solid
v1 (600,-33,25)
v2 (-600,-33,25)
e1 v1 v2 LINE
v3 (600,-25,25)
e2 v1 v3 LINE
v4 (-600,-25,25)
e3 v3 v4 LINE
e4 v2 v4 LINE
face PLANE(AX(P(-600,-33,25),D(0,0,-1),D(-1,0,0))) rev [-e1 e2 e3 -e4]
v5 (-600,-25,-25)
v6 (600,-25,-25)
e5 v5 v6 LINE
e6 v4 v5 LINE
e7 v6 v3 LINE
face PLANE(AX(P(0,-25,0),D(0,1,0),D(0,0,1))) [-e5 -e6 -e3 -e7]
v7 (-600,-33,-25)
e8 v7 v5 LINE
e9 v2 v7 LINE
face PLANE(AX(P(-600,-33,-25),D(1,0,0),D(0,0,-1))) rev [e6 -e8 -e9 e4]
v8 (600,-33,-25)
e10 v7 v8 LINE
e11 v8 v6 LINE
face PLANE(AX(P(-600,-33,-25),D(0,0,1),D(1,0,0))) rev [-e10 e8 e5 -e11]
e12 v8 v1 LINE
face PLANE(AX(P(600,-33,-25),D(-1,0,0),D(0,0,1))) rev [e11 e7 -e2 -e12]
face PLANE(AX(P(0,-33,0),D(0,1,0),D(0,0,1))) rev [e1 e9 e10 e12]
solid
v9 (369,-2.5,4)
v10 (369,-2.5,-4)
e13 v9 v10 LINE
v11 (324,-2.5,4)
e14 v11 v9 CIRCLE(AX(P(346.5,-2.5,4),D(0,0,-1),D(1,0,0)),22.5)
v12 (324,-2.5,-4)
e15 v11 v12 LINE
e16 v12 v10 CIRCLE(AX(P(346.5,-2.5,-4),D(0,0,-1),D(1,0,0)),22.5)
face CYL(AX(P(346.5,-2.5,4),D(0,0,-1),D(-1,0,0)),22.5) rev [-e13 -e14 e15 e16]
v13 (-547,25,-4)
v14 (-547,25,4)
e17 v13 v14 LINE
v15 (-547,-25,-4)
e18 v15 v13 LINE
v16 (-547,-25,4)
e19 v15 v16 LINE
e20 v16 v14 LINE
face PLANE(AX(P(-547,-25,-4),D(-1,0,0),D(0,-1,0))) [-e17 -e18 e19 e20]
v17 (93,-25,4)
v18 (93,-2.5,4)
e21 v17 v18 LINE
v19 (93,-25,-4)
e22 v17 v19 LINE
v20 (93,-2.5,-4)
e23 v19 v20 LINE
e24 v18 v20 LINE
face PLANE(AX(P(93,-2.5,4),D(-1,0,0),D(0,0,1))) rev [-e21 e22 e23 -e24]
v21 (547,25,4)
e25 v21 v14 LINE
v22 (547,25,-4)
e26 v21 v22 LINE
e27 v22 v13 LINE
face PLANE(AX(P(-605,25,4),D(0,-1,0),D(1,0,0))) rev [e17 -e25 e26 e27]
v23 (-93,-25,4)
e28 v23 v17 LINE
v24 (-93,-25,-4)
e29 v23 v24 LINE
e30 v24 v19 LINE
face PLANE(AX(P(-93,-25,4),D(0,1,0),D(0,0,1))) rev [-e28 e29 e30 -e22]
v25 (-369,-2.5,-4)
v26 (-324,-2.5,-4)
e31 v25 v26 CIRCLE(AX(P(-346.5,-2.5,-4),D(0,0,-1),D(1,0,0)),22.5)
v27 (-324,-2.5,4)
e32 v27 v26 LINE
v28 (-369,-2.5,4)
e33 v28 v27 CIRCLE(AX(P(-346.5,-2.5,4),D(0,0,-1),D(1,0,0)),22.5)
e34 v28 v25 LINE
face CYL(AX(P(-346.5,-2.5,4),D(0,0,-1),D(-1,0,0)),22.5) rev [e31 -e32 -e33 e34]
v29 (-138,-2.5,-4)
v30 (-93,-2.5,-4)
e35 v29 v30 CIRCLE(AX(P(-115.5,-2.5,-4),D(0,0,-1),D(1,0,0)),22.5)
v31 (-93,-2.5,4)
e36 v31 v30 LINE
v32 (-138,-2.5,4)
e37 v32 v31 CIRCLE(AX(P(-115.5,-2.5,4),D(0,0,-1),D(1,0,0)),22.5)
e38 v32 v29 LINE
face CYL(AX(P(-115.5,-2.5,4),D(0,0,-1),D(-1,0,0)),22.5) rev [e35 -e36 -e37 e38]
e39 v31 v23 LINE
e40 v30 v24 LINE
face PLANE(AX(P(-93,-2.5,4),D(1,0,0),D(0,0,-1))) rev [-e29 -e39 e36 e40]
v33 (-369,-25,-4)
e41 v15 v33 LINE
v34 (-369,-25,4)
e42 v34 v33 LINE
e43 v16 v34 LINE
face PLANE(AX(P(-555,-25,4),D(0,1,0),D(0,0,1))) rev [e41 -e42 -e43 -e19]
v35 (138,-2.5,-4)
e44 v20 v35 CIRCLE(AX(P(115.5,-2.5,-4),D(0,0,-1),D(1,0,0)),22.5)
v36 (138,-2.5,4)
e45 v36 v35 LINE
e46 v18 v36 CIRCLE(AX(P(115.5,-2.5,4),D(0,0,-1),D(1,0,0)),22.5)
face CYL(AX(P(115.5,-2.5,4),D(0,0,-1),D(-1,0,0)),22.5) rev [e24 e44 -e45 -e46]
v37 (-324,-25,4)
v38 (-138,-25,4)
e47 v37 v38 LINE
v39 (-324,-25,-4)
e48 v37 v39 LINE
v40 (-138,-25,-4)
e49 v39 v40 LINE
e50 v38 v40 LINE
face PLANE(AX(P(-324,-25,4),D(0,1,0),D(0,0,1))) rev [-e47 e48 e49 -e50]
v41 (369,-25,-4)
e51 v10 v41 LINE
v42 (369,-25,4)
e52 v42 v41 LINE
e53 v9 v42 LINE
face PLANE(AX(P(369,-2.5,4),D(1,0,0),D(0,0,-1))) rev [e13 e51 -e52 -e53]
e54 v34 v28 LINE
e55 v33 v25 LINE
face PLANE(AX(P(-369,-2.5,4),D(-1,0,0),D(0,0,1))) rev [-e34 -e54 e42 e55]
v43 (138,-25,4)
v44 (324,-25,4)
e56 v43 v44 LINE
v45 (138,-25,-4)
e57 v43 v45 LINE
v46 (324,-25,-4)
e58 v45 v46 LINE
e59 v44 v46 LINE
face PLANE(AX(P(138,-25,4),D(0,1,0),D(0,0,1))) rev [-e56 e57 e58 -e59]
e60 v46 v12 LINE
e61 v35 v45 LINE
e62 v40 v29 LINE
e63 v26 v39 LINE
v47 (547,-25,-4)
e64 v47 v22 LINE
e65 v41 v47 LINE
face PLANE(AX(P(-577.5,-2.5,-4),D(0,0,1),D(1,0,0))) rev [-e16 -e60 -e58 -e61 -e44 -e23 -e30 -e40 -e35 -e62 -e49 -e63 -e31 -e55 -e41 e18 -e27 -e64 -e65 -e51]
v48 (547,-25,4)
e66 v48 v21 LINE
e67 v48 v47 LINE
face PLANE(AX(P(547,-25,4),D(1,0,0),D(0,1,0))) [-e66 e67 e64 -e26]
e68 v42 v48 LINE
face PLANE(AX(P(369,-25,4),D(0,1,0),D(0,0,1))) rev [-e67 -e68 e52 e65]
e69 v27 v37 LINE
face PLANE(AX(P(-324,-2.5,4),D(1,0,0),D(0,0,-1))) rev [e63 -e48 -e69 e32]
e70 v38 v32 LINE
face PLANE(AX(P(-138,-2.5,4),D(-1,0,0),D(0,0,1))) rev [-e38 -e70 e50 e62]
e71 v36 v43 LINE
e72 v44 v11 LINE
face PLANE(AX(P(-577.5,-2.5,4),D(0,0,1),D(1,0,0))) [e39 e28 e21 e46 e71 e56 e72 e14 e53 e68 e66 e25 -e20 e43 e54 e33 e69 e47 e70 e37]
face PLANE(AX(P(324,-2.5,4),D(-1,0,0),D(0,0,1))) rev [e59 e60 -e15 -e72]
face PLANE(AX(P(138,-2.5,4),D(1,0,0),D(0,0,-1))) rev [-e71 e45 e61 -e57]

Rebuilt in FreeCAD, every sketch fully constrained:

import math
import FreeCAD as App
import Part
import Sketcher
from FreeCAD import Vector

doc = App.newDocument("Part")
body = doc.addObject("PartDesign::Body", "Body")

sketch1 = doc.addObject("Sketcher::SketchObject", "Sketch")
body.addObject(sketch1)
sketch1.AttachmentSupport = (doc.XY_Plane, [""])
sketch1.MapMode = "FlatFace"
sketch1.addGeometry([
    Part.LineSegment(Vector(-600, -25, 0), Vector(-600, -2.5, 0)),
    Part.ArcOfCircle(Part.Circle(Vector(-577.5, -2.5, 0), Vector(0, 0, 1), 22.5), math.radians(0), math.radians(180)),
    Part.LineSegment(Vector(-555, -2.5, 0), Vector(-555, -25, 0)),
    Part.LineSegment(Vector(-555, -25, 0), Vector(-369, -25, 0)),
    Part.LineSegment(Vector(-369, -25, 0), Vector(-369, -2.5, 0)),
    Part.ArcOfCircle(Part.Circle(Vector(-346.5, -2.5, 0), Vector(0, 0, 1), 22.5), math.radians(0), math.radians(180)),
    Part.LineSegment(Vector(-324, -2.5, 0), Vector(-324, -25, 0)),
    Part.LineSegment(Vector(-324, -25, 0), Vector(-138, -25, 0)),
    Part.LineSegment(Vector(-138, -25, 0), Vector(-138, -2.5, 0)),
    Part.ArcOfCircle(Part.Circle(Vector(-115.5, -2.5, 0), Vector(0, 0, 1), 22.5), math.radians(0), math.radians(180)),
    Part.LineSegment(Vector(-93, -2.5, 0), Vector(-93, -25, 0)),
    Part.LineSegment(Vector(-93, -25, 0), Vector(93, -25, 0)),
    Part.LineSegment(Vector(93, -25, 0), Vector(93, -2.5, 0)),
    Part.ArcOfCircle(Part.Circle(Vector(115.5, -2.5, 0), Vector(0, 0, 1), 22.5), math.radians(0), math.radians(180)),
    Part.LineSegment(Vector(138, -2.5, 0), Vector(138, -25, 0)),
    Part.LineSegment(Vector(138, -25, 0), Vector(324, -25, 0)),
    Part.LineSegment(Vector(324, -25, 0), Vector(324, -2.5, 0)),
    Part.ArcOfCircle(Part.Circle(Vector(346.5, -2.5, 0), Vector(0, 0, 1), 22.5), math.radians(0), math.radians(180)),
    Part.LineSegment(Vector(369, -2.5, 0), Vector(369, -25, 0)),
    Part.LineSegment(Vector(369, -25, 0), Vector(555, -25, 0)),
    Part.LineSegment(Vector(555, -25, 0), Vector(555, -2.5, 0)),
    Part.ArcOfCircle(Part.Circle(Vector(577.5, -2.5, 0), Vector(0, 0, 1), 22.5), math.radians(0), math.radians(180)),
    Part.LineSegment(Vector(600, -2.5, 0), Vector(600, -25, 0)),
    Part.LineSegment(Vector(600, -25, 0), Vector(605, -25, 0)),
    Part.LineSegment(Vector(605, -25, 0), Vector(605, 25, 0)),
    Part.LineSegment(Vector(605, 25, 0), Vector(-605, 25, 0)),
    Part.LineSegment(Vector(-605, 25, 0), Vector(-605, -25, 0)),
    Part.LineSegment(Vector(-605, -25, 0), Vector(-600, -25, 0)),
], False)
sketch1.addConstraint([
    Sketcher.Constraint("Tangent", 0, 2, 1, 2),
    Sketcher.Constraint("Tangent", 1, 1, 2, 1),
    Sketcher.Constraint("Coincident", 2, 2, 3, 1),
    Sketcher.Constraint("Coincident", 3, 2, 4, 1),
    Sketcher.Constraint("Tangent", 4, 2, 5, 2),
    Sketcher.Constraint("Tangent", 5, 1, 6, 1),
    Sketcher.Constraint("Coincident", 6, 2, 7, 1),
    Sketcher.Constraint("Coincident", 7, 2, 8, 1),
    Sketcher.Constraint("Tangent", 8, 2, 9, 2),
    Sketcher.Constraint("Tangent", 9, 1, 10, 1),
    Sketcher.Constraint("Coincident", 10, 2, 11, 1),
    Sketcher.Constraint("Coincident", 11, 2, 12, 1),
    Sketcher.Constraint("Tangent", 12, 2, 13, 2),
    Sketcher.Constraint("Tangent", 13, 1, 14, 1),
    Sketcher.Constraint("Coincident", 14, 2, 15, 1),
    Sketcher.Constraint("Coincident", 15, 2, 16, 1),
    Sketcher.Constraint("Tangent", 16, 2, 17, 2),
    Sketcher.Constraint("Tangent", 17, 1, 18, 1),
    Sketcher.Constraint("Coincident", 18, 2, 19, 1),
    Sketcher.Constraint("Coincident", 19, 2, 20, 1),
    Sketcher.Constraint("Tangent", 20, 2, 21, 2),
    Sketcher.Constraint("Tangent", 21, 1, 22, 1),
    Sketcher.Constraint("Coincident", 22, 2, 23, 1),
    Sketcher.Constraint("Coincident", 23, 2, 24, 1),
    Sketcher.Constraint("Coincident", 24, 2, 25, 1),
    Sketcher.Constraint("Coincident", 25, 2, 26, 1),
    Sketcher.Constraint("Coincident", 26, 2, 27, 1),
    Sketcher.Constraint("Coincident", 27, 2, 0, 1),
    Sketcher.Constraint("Vertical", 0),
    Sketcher.Constraint("Vertical", 2),
    Sketcher.Constraint("Horizontal", 3),
    Sketcher.Constraint("Vertical", 4),
    Sketcher.Constraint("Vertical", 6),
    Sketcher.Constraint("Horizontal", 7),
    Sketcher.Constraint("Vertical", 8),
    Sketcher.Constraint("Vertical", 10),
    Sketcher.Constraint("Horizontal", 11),
    Sketcher.Constraint("Vertical", 12),
    Sketcher.Constraint("Vertical", 14),
    Sketcher.Constraint("Horizontal", 15),
    Sketcher.Constraint("Vertical", 16),
    Sketcher.Constraint("Vertical", 18),
    Sketcher.Constraint("Horizontal", 19),
    Sketcher.Constraint("Vertical", 20),
    Sketcher.Constraint("Vertical", 22),
    Sketcher.Constraint("Horizontal", 23),
    Sketcher.Constraint("Vertical", 24),
    Sketcher.Constraint("Horizontal", 25),
    Sketcher.Constraint("Vertical", 26),
    Sketcher.Constraint("Horizontal", 27),
    Sketcher.Constraint("Equal", 1, 5),
    Sketcher.Constraint("Equal", 5, 9),
    Sketcher.Constraint("Equal", 9, 13),
    Sketcher.Constraint("Equal", 13, 17),
    Sketcher.Constraint("Equal", 17, 21),
    Sketcher.Constraint("Symmetric", 23, 2, 25, 2, -1, 1),
    Sketcher.Constraint("Symmetric", 9, 3, 13, 3, -2),
    Sketcher.Constraint("Symmetric", 5, 3, 17, 3, -2),
    Sketcher.Constraint("Symmetric", 1, 3, 21, 3, -2),
    Sketcher.Constraint("Horizontal", 1, 3, 5, 3),
    Sketcher.Constraint("Horizontal", 5, 3, 9, 3),
    Sketcher.Constraint("Horizontal", 3, 2, 6, 2),
    Sketcher.Constraint("Horizontal", 7, 2, 10, 2),
    Sketcher.Constraint("Horizontal", 11, 2, 14, 2),
    Sketcher.Constraint("Horizontal", 15, 2, 18, 2),
    Sketcher.Constraint("Horizontal", 19, 2, 22, 2),
    Sketcher.Constraint("Horizontal", 23, 2, 26, 2),
    Sketcher.Constraint("Equal", 3, 7),
    Sketcher.Constraint("Equal", 7, 11),
    Sketcher.Constraint("Radius", 1, 22.5),
    Sketcher.Constraint("DistanceX", 3, 1, 3, 2, 186.0),
    Sketcher.Constraint("DistanceX", 23, 1, 23, 2, 5.0),
    Sketcher.Constraint("DistanceY", 24, 1, 24, 2, 50.0),
    Sketcher.Constraint("DistanceY", 0, 1, 0, 2, 22.5),
])
pad1 = doc.addObject("PartDesign::Pad", "Pad")
body.addObject(pad1)
pad1.Profile = sketch1
pad1.Length = 8
pad1.Midplane = True

sketch2 = doc.addObject("Sketcher::SketchObject", "Sketch001")
body.addObject(sketch2)
sketch2.AttachmentSupport = (doc.XZ_Plane, [""])
sketch2.MapMode = "FlatFace"
sketch2.AttachmentOffset = App.Placement(Vector(0, 0, -25), App.Rotation())
sketch2.addGeometry([
    Part.LineSegment(Vector(-727.106, -126.106, 0), Vector(-727.106, 126.106, 0)),
    Part.LineSegment(Vector(-727.106, 126.106, 0), Vector(727.106, 126.106, 0)),
    Part.LineSegment(Vector(727.106, 126.106, 0), Vector(727.106, -126.106, 0)),
    Part.LineSegment(Vector(727.106, -126.106, 0), Vector(-727.106, -126.106, 0)),
    Part.LineSegment(Vector(547, 4, 0), Vector(-547, 4, 0)),
    Part.LineSegment(Vector(-547, 4, 0), Vector(-547, -4, 0)),
    Part.LineSegment(Vector(-547, -4, 0), Vector(547, -4, 0)),
    Part.LineSegment(Vector(547, -4, 0), Vector(547, 4, 0)),
], False)
sketch2.addConstraint([
    Sketcher.Constraint("Coincident", 0, 2, 1, 1),
    Sketcher.Constraint("Coincident", 1, 2, 2, 1),
    Sketcher.Constraint("Coincident", 2, 2, 3, 1),
    Sketcher.Constraint("Coincident", 3, 2, 0, 1),
    Sketcher.Constraint("Coincident", 4, 2, 5, 1),
    Sketcher.Constraint("Coincident", 5, 2, 6, 1),
    Sketcher.Constraint("Coincident", 6, 2, 7, 1),
    Sketcher.Constraint("Coincident", 7, 2, 4, 1),
    Sketcher.Constraint("Vertical", 0),
    Sketcher.Constraint("Horizontal", 1),
    Sketcher.Constraint("Vertical", 2),
    Sketcher.Constraint("Horizontal", 3),
    Sketcher.Constraint("Horizontal", 4),
    Sketcher.Constraint("Vertical", 5),
    Sketcher.Constraint("Horizontal", 6),
    Sketcher.Constraint("Vertical", 7),
    Sketcher.Constraint("Symmetric", 0, 2, 2, 2, -1, 1),
    Sketcher.Constraint("Symmetric", 4, 2, 6, 2, -1, 1),
    Sketcher.Constraint("DistanceX", 4, 2, 4, 1, 1094.0),
    Sketcher.Constraint("DistanceY", 5, 2, 5, 1, 8.0),
    Sketcher.Constraint("DistanceX", 1, 1, 1, 2, 1454.212),
    Sketcher.Constraint("DistanceY", 0, 1, 0, 2, 252.212),
])
pocket1 = doc.addObject("PartDesign::Pocket", "Pocket")
body.addObject(pocket1)
pocket1.Profile = sketch2
pocket1.Type = "ThroughAll"
pocket1.Reversed = True
body2 = doc.addObject("PartDesign::Body", "Body001")

sketch3 = doc.addObject("Sketcher::SketchObject", "Sketch002")
body2.addObject(sketch3)
sketch3.AttachmentSupport = (doc.getObject("XZ_Plane001"), [""])
sketch3.MapMode = "FlatFace"
sketch3.AttachmentOffset = App.Placement(Vector(0, 0, 25), App.Rotation())
sketch3.addGeometry([
    Part.LineSegment(Vector(-600, 25, 0), Vector(-600, -25, 0)),
    Part.LineSegment(Vector(-600, -25, 0), Vector(600, -25, 0)),
    Part.LineSegment(Vector(600, -25, 0), Vector(600, 25, 0)),
    Part.LineSegment(Vector(600, 25, 0), Vector(-600, 25, 0)),
], False)
sketch3.addConstraint([
    Sketcher.Constraint("Coincident", 0, 2, 1, 1),
    Sketcher.Constraint("Coincident", 1, 2, 2, 1),
    Sketcher.Constraint("Coincident", 2, 2, 3, 1),
    Sketcher.Constraint("Coincident", 3, 2, 0, 1),
    Sketcher.Constraint("Vertical", 0),
    Sketcher.Constraint("Horizontal", 1),
    Sketcher.Constraint("Vertical", 2),
    Sketcher.Constraint("Horizontal", 3),
    Sketcher.Constraint("Symmetric", 0, 2, 2, 2, -1, 1),
    Sketcher.Constraint("DistanceX", 1, 1, 1, 2, 1200.0),
    Sketcher.Constraint("DistanceY", 0, 2, 0, 1, 50.0),
])
pad2 = doc.addObject("PartDesign::Pad", "Pad001")
body2.addObject(pad2)
pad2.Profile = sketch3
pad2.Length = 8

doc.recompute()
